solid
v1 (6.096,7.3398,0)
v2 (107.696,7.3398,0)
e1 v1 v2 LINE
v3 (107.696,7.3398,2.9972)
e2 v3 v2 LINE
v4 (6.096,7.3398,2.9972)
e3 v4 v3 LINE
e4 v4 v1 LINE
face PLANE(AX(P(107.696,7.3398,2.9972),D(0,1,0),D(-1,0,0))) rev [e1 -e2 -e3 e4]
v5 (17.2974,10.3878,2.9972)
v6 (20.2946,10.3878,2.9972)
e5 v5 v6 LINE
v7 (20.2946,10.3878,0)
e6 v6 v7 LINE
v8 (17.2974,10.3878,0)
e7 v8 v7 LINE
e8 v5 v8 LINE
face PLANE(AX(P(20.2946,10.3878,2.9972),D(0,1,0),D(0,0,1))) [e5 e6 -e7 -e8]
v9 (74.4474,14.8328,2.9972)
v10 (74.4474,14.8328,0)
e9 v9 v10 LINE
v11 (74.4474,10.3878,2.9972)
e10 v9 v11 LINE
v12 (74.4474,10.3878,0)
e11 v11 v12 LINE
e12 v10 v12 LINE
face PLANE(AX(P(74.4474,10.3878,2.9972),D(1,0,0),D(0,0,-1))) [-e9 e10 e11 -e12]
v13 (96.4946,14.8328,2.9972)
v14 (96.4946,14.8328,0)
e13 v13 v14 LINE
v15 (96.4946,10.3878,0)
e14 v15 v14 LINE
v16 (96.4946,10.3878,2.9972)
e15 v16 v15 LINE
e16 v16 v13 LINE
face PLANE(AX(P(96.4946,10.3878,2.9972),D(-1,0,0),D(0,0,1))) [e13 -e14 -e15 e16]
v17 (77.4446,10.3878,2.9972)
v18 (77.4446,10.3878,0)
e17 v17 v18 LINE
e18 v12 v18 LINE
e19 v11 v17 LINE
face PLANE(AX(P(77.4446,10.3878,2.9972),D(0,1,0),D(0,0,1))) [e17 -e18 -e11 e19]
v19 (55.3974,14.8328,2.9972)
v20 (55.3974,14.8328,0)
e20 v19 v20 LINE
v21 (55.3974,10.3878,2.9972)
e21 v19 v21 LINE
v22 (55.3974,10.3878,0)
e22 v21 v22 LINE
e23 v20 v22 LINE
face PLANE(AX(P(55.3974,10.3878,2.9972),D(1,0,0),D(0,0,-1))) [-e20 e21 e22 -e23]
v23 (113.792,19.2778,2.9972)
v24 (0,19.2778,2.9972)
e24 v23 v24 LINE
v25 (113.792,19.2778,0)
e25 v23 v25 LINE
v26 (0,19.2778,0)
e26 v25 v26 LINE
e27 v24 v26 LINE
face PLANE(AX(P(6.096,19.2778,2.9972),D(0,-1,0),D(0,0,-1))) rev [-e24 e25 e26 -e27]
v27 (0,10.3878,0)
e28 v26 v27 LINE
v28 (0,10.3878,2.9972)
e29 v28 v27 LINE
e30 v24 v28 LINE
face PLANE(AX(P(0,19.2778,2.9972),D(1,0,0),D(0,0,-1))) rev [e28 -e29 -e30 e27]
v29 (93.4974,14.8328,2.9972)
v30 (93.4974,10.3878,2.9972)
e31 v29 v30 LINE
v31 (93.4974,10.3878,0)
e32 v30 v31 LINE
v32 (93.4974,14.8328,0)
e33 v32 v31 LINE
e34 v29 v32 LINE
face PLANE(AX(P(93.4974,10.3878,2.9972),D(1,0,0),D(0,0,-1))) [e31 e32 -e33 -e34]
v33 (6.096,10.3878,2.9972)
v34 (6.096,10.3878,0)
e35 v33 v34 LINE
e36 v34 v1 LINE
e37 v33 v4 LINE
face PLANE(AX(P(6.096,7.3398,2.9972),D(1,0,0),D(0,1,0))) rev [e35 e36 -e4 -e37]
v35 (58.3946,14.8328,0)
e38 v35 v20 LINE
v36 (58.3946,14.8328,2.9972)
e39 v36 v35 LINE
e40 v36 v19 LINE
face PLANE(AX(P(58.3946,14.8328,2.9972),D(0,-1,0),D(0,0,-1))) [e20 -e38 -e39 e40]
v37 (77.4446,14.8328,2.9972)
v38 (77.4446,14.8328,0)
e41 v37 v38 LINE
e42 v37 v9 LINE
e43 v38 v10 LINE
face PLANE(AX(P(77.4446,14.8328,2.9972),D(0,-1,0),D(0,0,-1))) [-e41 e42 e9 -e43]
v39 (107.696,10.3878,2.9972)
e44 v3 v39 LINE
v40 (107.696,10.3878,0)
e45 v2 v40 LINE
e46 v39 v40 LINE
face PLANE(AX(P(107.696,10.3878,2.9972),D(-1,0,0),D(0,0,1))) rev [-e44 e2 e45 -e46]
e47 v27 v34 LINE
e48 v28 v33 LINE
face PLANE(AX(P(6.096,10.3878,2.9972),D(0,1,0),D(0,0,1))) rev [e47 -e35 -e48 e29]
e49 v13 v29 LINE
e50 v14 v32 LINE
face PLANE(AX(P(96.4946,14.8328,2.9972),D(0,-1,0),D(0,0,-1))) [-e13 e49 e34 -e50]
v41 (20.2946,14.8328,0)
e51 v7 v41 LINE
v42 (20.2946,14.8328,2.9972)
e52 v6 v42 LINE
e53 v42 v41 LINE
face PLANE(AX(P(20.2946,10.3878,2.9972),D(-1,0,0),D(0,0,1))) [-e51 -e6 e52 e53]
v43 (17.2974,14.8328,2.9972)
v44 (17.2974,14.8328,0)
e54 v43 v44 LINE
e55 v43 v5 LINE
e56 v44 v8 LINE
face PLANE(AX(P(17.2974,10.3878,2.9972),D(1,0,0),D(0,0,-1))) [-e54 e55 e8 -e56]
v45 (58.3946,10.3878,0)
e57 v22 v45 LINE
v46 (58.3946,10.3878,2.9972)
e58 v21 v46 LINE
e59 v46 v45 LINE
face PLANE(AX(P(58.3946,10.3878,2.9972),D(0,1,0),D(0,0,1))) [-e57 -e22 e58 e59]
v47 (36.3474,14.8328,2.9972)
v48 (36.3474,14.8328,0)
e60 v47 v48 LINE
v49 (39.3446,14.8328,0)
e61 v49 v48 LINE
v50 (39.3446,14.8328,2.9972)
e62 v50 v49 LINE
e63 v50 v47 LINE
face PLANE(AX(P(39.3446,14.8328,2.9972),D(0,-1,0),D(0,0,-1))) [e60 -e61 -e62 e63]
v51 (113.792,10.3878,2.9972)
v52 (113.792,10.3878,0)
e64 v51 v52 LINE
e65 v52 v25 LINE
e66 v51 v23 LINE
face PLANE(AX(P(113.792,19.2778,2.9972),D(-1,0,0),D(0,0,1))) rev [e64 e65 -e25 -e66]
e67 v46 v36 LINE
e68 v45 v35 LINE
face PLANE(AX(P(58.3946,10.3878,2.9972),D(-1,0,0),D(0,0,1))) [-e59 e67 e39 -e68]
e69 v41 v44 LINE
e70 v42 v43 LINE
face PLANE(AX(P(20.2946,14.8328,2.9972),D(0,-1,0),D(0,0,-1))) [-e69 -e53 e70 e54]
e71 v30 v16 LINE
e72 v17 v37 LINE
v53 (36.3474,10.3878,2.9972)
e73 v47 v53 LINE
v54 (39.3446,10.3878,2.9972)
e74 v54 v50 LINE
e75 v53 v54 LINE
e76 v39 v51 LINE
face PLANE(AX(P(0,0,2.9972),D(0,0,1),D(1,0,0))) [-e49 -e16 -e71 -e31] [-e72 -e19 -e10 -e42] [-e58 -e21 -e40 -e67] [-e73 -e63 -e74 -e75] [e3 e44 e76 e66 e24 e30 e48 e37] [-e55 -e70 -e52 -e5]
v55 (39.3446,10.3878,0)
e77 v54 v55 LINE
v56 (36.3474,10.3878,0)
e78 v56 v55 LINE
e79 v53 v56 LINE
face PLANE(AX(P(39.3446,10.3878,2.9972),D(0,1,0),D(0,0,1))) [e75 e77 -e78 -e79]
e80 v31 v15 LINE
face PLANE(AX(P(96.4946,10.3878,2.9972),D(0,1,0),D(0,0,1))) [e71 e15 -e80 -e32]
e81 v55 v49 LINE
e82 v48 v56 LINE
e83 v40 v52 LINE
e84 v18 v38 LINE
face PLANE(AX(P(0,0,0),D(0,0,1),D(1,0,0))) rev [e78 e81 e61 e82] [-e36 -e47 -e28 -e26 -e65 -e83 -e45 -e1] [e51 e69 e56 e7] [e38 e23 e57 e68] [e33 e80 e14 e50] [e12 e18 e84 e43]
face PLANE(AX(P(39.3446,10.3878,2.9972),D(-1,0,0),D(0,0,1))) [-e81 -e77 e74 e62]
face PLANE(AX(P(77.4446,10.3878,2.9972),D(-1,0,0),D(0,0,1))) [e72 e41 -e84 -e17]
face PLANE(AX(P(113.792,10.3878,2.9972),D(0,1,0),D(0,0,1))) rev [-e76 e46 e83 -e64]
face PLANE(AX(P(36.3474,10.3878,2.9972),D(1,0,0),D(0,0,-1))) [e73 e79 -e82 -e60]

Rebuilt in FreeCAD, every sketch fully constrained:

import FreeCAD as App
import Part
import Sketcher
from FreeCAD import Vector
Q = App.Units.Quantity


def add_polygon(sketch, points):
    """Adds a closed chain of lines whose ends are joined by coincident constraints."""
    first, n = sketch.GeometryCount, len(points)
    for a, b in zip(points, points[1:] + points[:1]):
        sketch.addGeometry(Part.LineSegment(App.Vector(*a, 0), App.Vector(*b, 0)), False)
    for i in range(n):
        sketch.addConstraint(Sketcher.Constraint("Coincident", first + i, 2, first + (i + 1) % n, 1))

doc = App.newDocument("Part")
body = doc.addObject("PartDesign::Body", "Body")

sketch1 = doc.addObject("Sketcher::SketchObject", "Sketch")
body.addObject(sketch1)
sketch1.AttachmentSupport = (doc.XY_Plane, [""])
sketch1.MapMode = "FlatFace"
add_polygon(sketch1, [(0, 19.2778), (0, 10.3878), (6.096, 10.3878), (6.096, 7.3398), (107.696, 7.3398), (107.696, 10.3878), (113.792, 10.3878), (113.792, 19.2778)])
add_polygon(sketch1, [(20.2946, 10.3878), (17.2974, 10.3878), (17.2974, 14.8328), (20.2946, 14.8328)])
add_polygon(sketch1, [(39.3446, 10.3878), (36.3474, 10.3878), (36.3474, 14.8328), (39.3446, 14.8328)])
add_polygon(sketch1, [(58.3946, 10.3878), (55.3974, 10.3878), (55.3974, 14.8328), (58.3946, 14.8328)])
add_polygon(sketch1, [(77.4446, 10.3878), (74.4474, 10.3878), (74.4474, 14.8328), (77.4446, 14.8328)])
add_polygon(sketch1, [(96.4946, 10.3878), (93.4974, 10.3878), (93.4974, 14.8328), (96.4946, 14.8328)])
sketch1.addConstraint([
    Sketcher.Constraint("Vertical", 0),
    Sketcher.Constraint("Horizontal", 1),
    Sketcher.Constraint("Vertical", 2),
    Sketcher.Constraint("Horizontal", 3),
    Sketcher.Constraint("Vertical", 4),
    Sketcher.Constraint("Horizontal", 5),
    Sketcher.Constraint("Vertical", 6),
    Sketcher.Constraint("Horizontal", 7),
    Sketcher.Constraint("Horizontal", 8),
    Sketcher.Constraint("Vertical", 9),
    Sketcher.Constraint("Horizontal", 10),
    Sketcher.Constraint("Vertical", 11),
    Sketcher.Constraint("Horizontal", 12),
    Sketcher.Constraint("Vertical", 13),
    Sketcher.Constraint("Horizontal", 14),
    Sketcher.Constraint("Vertical", 15),
    Sketcher.Constraint("Horizontal", 16),
    Sketcher.Constraint("Vertical", 17),
    Sketcher.Constraint("Horizontal", 18),
    Sketcher.Constraint("Vertical", 19),
    Sketcher.Constraint("Horizontal", 20),
    Sketcher.Constraint("Vertical", 21),
    Sketcher.Constraint("Horizontal", 22),
    Sketcher.Constraint("Vertical", 23),
    Sketcher.Constraint("Horizontal", 24),
    Sketcher.Constraint("Vertical", 25),
    Sketcher.Constraint("Horizontal", 26),
    Sketcher.Constraint("Vertical", 27),
    Sketcher.Constraint("PointOnObject", 0, 2, -2),
    Sketcher.Constraint("Horizontal", 1, 2, 4, 2),
    Sketcher.Constraint("Horizontal", 5, 2, 8, 2),
    Sketcher.Constraint("Horizontal", 11, 2, 12, 2),
    Sketcher.Constraint("Horizontal", 10, 2, 13, 2),
    Sketcher.Constraint("Horizontal", 15, 2, 16, 2),
    Sketcher.Constraint("Horizontal", 14, 2, 17, 2),
    Sketcher.Constraint("Horizontal", 19, 2, 20, 2),
    Sketcher.Constraint("Horizontal", 18, 2, 21, 2),
    Sketcher.Constraint("Horizontal", 23, 2, 24, 2),
    Sketcher.Constraint("Horizontal", 22, 2, 25, 2),
    Sketcher.Constraint("Equal", 1, 5),
    Sketcher.Constraint("Equal", 10, 12),
    Sketcher.Constraint("Equal", 14, 16),
    Sketcher.Constraint("Equal", 18, 20),
    Sketcher.Constraint("Equal", 22, 24),
    Sketcher.Constraint("DistanceX", 3, 1, 3, 2, Q("4 in")),
    Sketcher.Constraint("DistanceX", 1, 1, 1, 2, Q("0.24 in")),
    Sketcher.Constraint("DistanceY", 0, 2, 0, 1, Q("0.35 in")),
    Sketcher.Constraint("DistanceY", 2, 2, 2, 1, Q("0.12 in")),
    Sketcher.Constraint("DistanceX", 8, 2, 8, 1, Q("0.118 in")),
    Sketcher.Constraint("DistanceY", 9, 1, 9, 2, Q("0.175 in")),
    Sketcher.Constraint("DistanceX", 8, 2, 12, 2, Q("0.75 in")),
    Sketcher.Constraint("DistanceX", 12, 2, 16, 2, Q("0.75 in")),
    Sketcher.Constraint("DistanceX", 16, 2, 20, 2, Q("0.75 in")),
    Sketcher.Constraint("DistanceX", 20, 2, 24, 2, Q("0.75 in")),
    Sketcher.Constraint("DistanceX", -1, 1, 8, 2, Q("0.681 in")),
    Sketcher.Constraint("DistanceY", -1, 1, 0, 2, Q("10.3878 mm")),
])
pad1 = doc.addObject("PartDesign::Pad", "Pad")
body.addObject(pad1)
pad1.Profile = sketch1
pad1.Length = Q("0.118 in")

doc.recompute()
